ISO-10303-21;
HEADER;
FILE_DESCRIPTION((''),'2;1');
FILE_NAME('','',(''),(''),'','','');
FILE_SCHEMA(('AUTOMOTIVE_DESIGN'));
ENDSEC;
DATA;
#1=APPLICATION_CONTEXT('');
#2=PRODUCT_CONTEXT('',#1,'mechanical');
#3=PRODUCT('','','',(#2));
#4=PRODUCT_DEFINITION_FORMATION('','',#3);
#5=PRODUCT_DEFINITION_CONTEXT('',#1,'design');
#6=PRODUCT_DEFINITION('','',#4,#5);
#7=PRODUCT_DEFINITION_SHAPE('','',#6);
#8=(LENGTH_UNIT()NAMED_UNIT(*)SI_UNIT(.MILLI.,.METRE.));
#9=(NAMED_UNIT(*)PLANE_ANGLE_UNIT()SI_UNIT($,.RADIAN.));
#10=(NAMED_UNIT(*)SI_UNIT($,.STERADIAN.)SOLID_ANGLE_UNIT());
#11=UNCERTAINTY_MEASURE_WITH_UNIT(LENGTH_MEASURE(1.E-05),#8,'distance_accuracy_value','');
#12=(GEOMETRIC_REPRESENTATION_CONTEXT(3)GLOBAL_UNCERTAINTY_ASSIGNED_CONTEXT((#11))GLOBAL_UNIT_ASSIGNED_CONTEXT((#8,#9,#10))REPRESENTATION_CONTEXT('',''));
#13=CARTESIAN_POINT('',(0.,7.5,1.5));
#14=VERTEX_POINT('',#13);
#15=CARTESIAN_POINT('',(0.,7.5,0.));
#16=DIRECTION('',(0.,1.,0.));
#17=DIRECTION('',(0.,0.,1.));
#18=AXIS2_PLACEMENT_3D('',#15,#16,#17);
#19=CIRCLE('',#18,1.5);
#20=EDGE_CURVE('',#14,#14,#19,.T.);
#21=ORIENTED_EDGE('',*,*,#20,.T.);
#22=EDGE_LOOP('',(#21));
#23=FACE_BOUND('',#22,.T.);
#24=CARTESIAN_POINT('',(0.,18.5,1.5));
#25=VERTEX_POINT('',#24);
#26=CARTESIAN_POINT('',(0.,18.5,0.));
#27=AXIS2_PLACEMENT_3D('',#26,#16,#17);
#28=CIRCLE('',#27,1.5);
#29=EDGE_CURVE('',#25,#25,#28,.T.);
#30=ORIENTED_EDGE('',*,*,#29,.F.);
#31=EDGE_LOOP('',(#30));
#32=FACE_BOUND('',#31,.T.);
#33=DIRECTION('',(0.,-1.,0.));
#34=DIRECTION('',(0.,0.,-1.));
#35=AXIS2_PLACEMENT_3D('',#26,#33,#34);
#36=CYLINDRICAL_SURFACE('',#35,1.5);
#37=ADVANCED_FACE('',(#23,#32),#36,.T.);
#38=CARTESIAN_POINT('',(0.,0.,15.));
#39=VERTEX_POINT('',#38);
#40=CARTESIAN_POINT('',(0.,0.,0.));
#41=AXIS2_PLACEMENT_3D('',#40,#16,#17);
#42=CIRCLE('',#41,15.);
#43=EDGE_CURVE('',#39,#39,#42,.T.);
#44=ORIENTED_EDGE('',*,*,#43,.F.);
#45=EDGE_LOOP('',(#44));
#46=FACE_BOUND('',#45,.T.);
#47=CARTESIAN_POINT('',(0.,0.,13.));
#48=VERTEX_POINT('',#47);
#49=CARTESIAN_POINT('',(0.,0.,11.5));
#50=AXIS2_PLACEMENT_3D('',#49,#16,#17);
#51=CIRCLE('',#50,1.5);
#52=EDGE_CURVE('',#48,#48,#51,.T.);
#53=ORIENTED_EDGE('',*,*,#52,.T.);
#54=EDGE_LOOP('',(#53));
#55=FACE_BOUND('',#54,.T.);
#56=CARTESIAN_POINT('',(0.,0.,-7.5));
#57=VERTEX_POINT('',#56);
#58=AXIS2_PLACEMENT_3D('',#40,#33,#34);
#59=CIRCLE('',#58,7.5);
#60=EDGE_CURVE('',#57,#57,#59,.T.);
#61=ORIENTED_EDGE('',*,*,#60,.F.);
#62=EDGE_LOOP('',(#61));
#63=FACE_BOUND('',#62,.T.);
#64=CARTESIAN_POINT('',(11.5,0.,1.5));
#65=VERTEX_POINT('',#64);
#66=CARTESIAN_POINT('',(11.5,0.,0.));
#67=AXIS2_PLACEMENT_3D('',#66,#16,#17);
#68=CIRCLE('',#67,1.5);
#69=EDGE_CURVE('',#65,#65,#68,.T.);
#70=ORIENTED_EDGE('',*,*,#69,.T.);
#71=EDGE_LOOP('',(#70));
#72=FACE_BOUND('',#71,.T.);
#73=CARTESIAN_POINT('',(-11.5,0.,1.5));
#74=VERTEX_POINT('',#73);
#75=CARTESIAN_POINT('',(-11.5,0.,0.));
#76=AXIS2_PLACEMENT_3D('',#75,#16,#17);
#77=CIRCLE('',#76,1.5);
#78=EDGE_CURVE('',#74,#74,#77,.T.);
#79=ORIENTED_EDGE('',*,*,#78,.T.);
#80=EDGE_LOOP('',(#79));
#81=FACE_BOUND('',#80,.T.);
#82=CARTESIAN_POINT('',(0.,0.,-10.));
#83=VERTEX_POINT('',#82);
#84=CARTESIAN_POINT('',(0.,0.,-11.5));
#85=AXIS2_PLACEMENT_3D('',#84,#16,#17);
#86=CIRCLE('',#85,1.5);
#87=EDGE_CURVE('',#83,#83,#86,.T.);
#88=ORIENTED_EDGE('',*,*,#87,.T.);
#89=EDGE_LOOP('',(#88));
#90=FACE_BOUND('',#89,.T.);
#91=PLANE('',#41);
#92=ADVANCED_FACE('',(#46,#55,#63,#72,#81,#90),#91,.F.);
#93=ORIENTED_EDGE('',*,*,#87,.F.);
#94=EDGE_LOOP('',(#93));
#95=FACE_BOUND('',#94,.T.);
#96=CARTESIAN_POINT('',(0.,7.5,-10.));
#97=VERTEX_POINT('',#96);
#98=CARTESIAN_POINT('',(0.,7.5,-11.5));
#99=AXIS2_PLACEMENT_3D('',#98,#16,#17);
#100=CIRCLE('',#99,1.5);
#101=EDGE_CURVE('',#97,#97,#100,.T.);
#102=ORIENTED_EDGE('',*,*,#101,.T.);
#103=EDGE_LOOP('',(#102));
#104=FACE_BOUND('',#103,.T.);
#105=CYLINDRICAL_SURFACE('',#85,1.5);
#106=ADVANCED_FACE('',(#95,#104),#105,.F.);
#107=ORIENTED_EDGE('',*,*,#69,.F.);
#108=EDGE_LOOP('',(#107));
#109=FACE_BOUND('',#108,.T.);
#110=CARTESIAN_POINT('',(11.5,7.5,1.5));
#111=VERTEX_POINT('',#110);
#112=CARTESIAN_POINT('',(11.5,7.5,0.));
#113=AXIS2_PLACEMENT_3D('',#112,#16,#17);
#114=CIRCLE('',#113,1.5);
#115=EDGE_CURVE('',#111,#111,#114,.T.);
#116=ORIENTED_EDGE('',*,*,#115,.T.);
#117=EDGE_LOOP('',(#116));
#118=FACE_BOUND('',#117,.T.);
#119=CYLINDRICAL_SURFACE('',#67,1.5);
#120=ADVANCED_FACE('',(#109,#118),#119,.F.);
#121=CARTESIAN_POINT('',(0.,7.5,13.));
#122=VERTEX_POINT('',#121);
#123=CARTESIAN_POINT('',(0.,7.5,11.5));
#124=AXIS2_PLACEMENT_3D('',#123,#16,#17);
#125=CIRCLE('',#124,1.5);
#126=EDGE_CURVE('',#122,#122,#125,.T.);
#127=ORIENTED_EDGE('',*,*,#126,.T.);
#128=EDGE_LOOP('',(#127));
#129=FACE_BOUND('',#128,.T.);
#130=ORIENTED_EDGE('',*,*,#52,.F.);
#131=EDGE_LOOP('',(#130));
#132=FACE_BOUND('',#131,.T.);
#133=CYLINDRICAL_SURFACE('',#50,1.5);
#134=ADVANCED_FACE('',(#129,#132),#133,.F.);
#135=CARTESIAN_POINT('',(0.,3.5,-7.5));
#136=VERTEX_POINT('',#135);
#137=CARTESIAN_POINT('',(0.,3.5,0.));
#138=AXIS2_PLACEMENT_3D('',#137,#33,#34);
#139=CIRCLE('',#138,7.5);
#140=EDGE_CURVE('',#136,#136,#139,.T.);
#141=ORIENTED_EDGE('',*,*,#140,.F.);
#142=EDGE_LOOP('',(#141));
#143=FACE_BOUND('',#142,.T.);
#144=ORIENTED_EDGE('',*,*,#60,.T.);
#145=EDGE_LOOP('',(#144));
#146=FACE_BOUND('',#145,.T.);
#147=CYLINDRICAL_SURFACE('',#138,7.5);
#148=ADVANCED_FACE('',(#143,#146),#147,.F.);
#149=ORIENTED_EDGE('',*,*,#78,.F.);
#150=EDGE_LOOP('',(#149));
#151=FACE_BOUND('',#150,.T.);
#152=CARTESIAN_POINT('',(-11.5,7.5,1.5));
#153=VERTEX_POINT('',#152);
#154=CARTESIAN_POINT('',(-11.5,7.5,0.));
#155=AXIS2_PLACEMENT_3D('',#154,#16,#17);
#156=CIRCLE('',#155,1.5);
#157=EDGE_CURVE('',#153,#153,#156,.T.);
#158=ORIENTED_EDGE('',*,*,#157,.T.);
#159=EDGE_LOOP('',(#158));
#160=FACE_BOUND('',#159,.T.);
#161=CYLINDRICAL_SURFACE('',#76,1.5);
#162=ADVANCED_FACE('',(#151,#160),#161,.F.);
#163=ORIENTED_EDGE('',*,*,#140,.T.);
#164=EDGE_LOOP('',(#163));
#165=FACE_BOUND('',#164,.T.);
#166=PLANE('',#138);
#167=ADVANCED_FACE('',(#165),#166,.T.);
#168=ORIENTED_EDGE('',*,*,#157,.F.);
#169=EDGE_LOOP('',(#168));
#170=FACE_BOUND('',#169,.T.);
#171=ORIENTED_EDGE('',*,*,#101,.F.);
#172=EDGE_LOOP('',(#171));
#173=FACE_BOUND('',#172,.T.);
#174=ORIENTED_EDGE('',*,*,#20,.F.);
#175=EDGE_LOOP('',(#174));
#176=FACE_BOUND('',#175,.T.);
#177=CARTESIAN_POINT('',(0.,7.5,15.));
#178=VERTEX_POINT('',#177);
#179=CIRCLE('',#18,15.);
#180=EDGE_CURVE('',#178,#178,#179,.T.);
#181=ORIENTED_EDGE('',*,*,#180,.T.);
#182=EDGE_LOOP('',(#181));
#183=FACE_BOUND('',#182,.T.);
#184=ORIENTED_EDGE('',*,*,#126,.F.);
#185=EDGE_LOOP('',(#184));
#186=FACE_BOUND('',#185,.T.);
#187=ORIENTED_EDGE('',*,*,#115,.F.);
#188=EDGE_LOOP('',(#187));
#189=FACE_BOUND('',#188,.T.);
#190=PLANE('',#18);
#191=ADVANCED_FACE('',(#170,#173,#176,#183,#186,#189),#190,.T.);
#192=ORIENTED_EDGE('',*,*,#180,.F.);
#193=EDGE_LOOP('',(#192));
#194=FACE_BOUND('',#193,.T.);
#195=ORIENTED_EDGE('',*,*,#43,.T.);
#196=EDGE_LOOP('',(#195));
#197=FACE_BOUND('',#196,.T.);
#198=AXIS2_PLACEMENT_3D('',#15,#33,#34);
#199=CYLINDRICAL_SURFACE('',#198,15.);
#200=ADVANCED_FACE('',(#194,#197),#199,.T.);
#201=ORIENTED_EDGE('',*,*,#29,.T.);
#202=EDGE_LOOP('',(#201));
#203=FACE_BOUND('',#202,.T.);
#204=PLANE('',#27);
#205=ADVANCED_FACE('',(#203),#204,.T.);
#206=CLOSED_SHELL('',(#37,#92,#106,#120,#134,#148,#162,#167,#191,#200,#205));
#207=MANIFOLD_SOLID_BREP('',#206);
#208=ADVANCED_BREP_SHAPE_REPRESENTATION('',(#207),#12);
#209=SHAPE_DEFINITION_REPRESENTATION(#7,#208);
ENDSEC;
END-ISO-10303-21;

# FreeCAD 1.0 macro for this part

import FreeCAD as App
import Part
import Sketcher
from FreeCAD import Vector

doc = App.newDocument("Part")
body = doc.addObject("PartDesign::Body", "Body")

# Sketch on XZ plane
sketch1 = doc.addObject("Sketcher::SketchObject", "Sketch")
body.addObject(sketch1)
sketch1.AttachmentSupport = (doc.XZ_Plane, [""])
sketch1.MapMode = "FlatFace"
sketch1.addGeometry(Part.Circle(Vector(0, 0, 0), Vector(0, 0, 1), 15), False)
sketch1.addConstraint([
    Sketcher.Constraint("Coincident", 0, 3, -1, 1),
    Sketcher.Constraint("Diameter", 0, 30.0),
])
pad1 = doc.addObject("PartDesign::Pad", "Pad")
body.addObject(pad1)
pad1.Profile = sketch1
pad1.Length = 7.5
pad1.Reversed = True

# Sketch on XZ plane
sketch2 = doc.addObject("Sketcher::SketchObject", "Sketch001")
body.addObject(sketch2)
sketch2.AttachmentSupport = (doc.XZ_Plane, [""])
sketch2.MapMode = "FlatFace"
sketch2.AttachmentOffset = App.Placement(Vector(0, 0, -7.5), App.Rotation())
sketch2.addGeometry(Part.Circle(Vector(0, 0, 0), Vector(0, 0, 1), 1.5), False)
sketch2.addConstraint([
    Sketcher.Constraint("Coincident", 0, 3, -1, 1),
    Sketcher.Constraint("Diameter", 0, 3.0),
])
pad2 = doc.addObject("PartDesign::Pad", "Pad001")
body.addObject(pad2)
pad2.Profile = sketch2
pad2.Length = 11
pad2.Reversed = True

# Sketch on XZ plane
sketch3 = doc.addObject("Sketcher::SketchObject", "Sketch002")
body.addObject(sketch3)
sketch3.AttachmentSupport = (doc.XZ_Plane, [""])
sketch3.MapMode = "FlatFace"
sketch3.addGeometry(Part.Circle(Vector(0, 0, 0), Vector(0, 0, 1), 8), False)
sketch3.addConstraint([
    Sketcher.Constraint("Coincident", 0, 3, -1, 1),
    Sketcher.Constraint("Diameter", 0, 15.0),
])
pocket1 = doc.addObject("PartDesign::Pocket", "Pocket")
body.addObject(pocket1)
pocket1.Profile = sketch3
pocket1.Length = 3.5

# Sketch on XZ plane
sketch4 = doc.addObject("Sketcher::SketchObject", "Sketch003")
body.addObject(sketch4)
sketch4.AttachmentSupport = (doc.XZ_Plane, [""])
sketch4.MapMode = "FlatFace"
sketch4.AttachmentOffset = App.Placement(Vector(0, 0, -7.5), App.Rotation())
sketch4.addGeometry([
    Part.Circle(Vector(0, -11.5, 0), Vector(0, 0, 1), 1.5),
    Part.Circle(Vector(11.5, 0, 0), Vector(0, 0, 1), 1.5),
    Part.Circle(Vector(0, 11.5, 0), Vector(0, 0, 1), 1.5),
    Part.Circle(Vector(-11.5, 0, 0), Vector(0, 0, 1), 1.5),
], False)
sketch4.addConstraint([
    Sketcher.Constraint("Equal", 0, 1),
    Sketcher.Constraint("Equal", 1, 2),
    Sketcher.Constraint("Equal", 2, 3),
    Sketcher.Constraint("Symmetric", 0, 3, 2, 3, -1, 1),
    Sketcher.Constraint("Symmetric", 1, 3, 3, 3, -1, 1),
    Sketcher.Constraint("PointOnObject", 0, 3, -2),
    Sketcher.Constraint("PointOnObject", 1, 3, -1),
    Sketcher.Constraint("Diameter", 0, 3.0),
    Sketcher.Constraint("DistanceY", 0, 3, 2, 3, 23.0),
    Sketcher.Constraint("DistanceX", 3, 3, 1, 3, 23.0),
])
pocket2 = doc.addObject("PartDesign::Pocket", "Pocket001")
body.addObject(pocket2)
pocket2.Profile = sketch4
pocket2.Type = "ThroughAll"
pocket2.Reversed = True

doc.recompute()
